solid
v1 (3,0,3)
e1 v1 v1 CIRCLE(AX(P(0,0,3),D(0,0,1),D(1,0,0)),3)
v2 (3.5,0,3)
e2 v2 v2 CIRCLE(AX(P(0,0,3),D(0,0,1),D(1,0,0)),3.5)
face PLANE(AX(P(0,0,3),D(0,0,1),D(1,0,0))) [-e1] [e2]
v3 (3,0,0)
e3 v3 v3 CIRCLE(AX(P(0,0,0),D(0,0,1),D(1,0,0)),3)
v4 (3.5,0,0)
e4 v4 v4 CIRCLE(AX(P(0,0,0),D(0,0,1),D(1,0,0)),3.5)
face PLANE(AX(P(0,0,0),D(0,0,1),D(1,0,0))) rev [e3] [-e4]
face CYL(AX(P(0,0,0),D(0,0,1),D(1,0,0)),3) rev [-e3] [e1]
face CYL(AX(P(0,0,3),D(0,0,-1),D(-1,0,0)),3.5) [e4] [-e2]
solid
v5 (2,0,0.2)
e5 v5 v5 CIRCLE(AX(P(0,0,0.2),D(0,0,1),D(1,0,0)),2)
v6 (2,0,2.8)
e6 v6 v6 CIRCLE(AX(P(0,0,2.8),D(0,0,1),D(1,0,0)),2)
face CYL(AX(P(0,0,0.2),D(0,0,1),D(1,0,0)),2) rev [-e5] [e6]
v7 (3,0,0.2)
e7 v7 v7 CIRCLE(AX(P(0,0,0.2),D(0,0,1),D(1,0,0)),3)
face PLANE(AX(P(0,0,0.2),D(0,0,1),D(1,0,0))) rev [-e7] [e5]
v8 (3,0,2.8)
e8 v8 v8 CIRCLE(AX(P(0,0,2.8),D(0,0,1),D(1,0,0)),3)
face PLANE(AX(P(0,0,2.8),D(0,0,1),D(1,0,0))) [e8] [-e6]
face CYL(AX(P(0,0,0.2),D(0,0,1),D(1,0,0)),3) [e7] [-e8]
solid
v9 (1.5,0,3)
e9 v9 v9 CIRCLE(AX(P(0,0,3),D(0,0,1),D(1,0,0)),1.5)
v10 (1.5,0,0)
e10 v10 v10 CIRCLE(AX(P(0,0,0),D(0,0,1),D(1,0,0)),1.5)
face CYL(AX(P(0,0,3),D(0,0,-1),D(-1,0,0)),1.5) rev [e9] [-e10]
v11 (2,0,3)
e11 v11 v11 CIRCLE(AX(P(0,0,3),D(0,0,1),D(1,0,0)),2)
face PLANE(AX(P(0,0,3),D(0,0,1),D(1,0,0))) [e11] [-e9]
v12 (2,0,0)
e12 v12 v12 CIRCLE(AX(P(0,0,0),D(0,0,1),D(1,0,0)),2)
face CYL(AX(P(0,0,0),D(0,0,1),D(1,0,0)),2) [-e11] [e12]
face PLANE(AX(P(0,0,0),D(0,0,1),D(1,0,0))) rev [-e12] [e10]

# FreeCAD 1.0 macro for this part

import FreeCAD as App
import Part
import Sketcher
from FreeCAD import Vector
Q = App.Units.Quantity

doc = App.newDocument("Part")
body = doc.addObject("PartDesign::Body", "Body")
body.AllowCompound = True

# Sketch on XY plane
sketch1 = body.newObject("Sketcher::SketchObject", "Sketch")
sketch1.AttachmentSupport = (doc.getObject("XY_Plane"), [""])
sketch1.MapMode = "FlatFace"
sketch1.addGeometry(Part.Circle(Vector(0, 0, 0), Vector(0, 0, 1), 3.5), False)
sketch1.addGeometry(Part.Circle(Vector(0, 0, 0), Vector(0, 0, 1), 1.5), False)
sketch1.addConstraint(Sketcher.Constraint("Coincident", 0, 3, -1, 1))
sketch1.addConstraint(Sketcher.Constraint("Coincident", 1, 3, -1, 1))
sketch1.addConstraint(Sketcher.Constraint("Diameter", 0, Q("7 mm")))
sketch1.addConstraint(Sketcher.Constraint("Diameter", 1, Q("3 mm")))
pad1 = body.newObject("PartDesign::Pad", "Pad")
pad1.Profile = sketch1
pad1.Length = 3

# Sketch on XY plane
sketch2 = body.newObject("Sketcher::SketchObject", "Sketch001")
sketch2.AttachmentSupport = (doc.getObject("XY_Plane"), [""])
sketch2.MapMode = "FlatFace"
sketch2.AttachmentOffset = App.Placement(Vector(0, 0, 3), App.Rotation())
sketch2.addGeometry(Part.Circle(Vector(0, 0, 0), Vector(0, 0, 1), 3), False)
sketch2.addGeometry(Part.Circle(Vector(0, 0, 0), Vector(0, 0, 1), 2), False)
sketch2.addConstraint(Sketcher.Constraint("Coincident", 0, 3, -1, 1))
sketch2.addConstraint(Sketcher.Constraint("Coincident", 1, 3, -1, 1))
sketch2.addConstraint(Sketcher.Constraint("Diameter", 0, Q("6 mm")))
sketch2.addConstraint(Sketcher.Constraint("Diameter", 1, Q("4 mm")))
pocket1 = body.newObject("PartDesign::Pocket", "Pocket")
pocket1.Profile = sketch2
pocket1.Length = 3
body2 = doc.addObject("PartDesign::Body", "Body001")

# Sketch on XY plane
sketch3 = body2.newObject("Sketcher::SketchObject", "Sketch002")
sketch3.AttachmentSupport = (doc.getObject("XY_Plane001"), [""])
sketch3.MapMode = "FlatFace"
sketch3.AttachmentOffset = App.Placement(Vector(0, 0, 3), App.Rotation())
sketch3.addGeometry(Part.Circle(Vector(0, 0, 0), Vector(0, 0, 1), 3), False)
sketch3.addGeometry(Part.Circle(Vector(0, 0, 0), Vector(0, 0, 1), 2), False)
sketch3.addConstraint(Sketcher.Constraint("Coincident", 0, 3, -1, 1))
sketch3.addConstraint(Sketcher.Constraint("Coincident", 1, 3, -1, 1))
sketch3.addConstraint(Sketcher.Constraint("Diameter", 0, Q("6 mm")))
sketch3.addConstraint(Sketcher.Constraint("Diameter", 1, Q("4 mm")))
pad2 = body2.newObject("PartDesign::Pad", "Pad001")
pad2.Profile = sketch3
pad2.Length = 2.8
pad2.Reversed = True

# Sketch on XY plane
sketch4 = body2.newObject("Sketcher::SketchObject", "Sketch003")
sketch4.AttachmentSupport = (doc.getObject("XY_Plane001"), [""])
sketch4.MapMode = "FlatFace"
sketch4.AttachmentOffset = App.Placement(Vector(0, 0, 3), App.Rotation())
sketch4.addGeometry(Part.Circle(Vector(0, 0, 0), Vector(0, 0, 1), 3), False)
sketch4.addGeometry(Part.Circle(Vector(0, 0, 0), Vector(0, 0, 1), 2), False)
sketch4.addConstraint(Sketcher.Constraint("Coincident", 0, 3, -1, 1))
sketch4.addConstraint(Sketcher.Constraint("Coincident", 1, 3, -1, 1))
sketch4.addConstraint(Sketcher.Constraint("Diameter", 0, Q("6 mm")))
sketch4.addConstraint(Sketcher.Constraint("Diameter", 1, Q("4 mm")))
pocket2 = body2.newObject("PartDesign::Pocket", "Pocket001")
pocket2.Profile = sketch4
pocket2.Length = 0.2

doc.recompute()
